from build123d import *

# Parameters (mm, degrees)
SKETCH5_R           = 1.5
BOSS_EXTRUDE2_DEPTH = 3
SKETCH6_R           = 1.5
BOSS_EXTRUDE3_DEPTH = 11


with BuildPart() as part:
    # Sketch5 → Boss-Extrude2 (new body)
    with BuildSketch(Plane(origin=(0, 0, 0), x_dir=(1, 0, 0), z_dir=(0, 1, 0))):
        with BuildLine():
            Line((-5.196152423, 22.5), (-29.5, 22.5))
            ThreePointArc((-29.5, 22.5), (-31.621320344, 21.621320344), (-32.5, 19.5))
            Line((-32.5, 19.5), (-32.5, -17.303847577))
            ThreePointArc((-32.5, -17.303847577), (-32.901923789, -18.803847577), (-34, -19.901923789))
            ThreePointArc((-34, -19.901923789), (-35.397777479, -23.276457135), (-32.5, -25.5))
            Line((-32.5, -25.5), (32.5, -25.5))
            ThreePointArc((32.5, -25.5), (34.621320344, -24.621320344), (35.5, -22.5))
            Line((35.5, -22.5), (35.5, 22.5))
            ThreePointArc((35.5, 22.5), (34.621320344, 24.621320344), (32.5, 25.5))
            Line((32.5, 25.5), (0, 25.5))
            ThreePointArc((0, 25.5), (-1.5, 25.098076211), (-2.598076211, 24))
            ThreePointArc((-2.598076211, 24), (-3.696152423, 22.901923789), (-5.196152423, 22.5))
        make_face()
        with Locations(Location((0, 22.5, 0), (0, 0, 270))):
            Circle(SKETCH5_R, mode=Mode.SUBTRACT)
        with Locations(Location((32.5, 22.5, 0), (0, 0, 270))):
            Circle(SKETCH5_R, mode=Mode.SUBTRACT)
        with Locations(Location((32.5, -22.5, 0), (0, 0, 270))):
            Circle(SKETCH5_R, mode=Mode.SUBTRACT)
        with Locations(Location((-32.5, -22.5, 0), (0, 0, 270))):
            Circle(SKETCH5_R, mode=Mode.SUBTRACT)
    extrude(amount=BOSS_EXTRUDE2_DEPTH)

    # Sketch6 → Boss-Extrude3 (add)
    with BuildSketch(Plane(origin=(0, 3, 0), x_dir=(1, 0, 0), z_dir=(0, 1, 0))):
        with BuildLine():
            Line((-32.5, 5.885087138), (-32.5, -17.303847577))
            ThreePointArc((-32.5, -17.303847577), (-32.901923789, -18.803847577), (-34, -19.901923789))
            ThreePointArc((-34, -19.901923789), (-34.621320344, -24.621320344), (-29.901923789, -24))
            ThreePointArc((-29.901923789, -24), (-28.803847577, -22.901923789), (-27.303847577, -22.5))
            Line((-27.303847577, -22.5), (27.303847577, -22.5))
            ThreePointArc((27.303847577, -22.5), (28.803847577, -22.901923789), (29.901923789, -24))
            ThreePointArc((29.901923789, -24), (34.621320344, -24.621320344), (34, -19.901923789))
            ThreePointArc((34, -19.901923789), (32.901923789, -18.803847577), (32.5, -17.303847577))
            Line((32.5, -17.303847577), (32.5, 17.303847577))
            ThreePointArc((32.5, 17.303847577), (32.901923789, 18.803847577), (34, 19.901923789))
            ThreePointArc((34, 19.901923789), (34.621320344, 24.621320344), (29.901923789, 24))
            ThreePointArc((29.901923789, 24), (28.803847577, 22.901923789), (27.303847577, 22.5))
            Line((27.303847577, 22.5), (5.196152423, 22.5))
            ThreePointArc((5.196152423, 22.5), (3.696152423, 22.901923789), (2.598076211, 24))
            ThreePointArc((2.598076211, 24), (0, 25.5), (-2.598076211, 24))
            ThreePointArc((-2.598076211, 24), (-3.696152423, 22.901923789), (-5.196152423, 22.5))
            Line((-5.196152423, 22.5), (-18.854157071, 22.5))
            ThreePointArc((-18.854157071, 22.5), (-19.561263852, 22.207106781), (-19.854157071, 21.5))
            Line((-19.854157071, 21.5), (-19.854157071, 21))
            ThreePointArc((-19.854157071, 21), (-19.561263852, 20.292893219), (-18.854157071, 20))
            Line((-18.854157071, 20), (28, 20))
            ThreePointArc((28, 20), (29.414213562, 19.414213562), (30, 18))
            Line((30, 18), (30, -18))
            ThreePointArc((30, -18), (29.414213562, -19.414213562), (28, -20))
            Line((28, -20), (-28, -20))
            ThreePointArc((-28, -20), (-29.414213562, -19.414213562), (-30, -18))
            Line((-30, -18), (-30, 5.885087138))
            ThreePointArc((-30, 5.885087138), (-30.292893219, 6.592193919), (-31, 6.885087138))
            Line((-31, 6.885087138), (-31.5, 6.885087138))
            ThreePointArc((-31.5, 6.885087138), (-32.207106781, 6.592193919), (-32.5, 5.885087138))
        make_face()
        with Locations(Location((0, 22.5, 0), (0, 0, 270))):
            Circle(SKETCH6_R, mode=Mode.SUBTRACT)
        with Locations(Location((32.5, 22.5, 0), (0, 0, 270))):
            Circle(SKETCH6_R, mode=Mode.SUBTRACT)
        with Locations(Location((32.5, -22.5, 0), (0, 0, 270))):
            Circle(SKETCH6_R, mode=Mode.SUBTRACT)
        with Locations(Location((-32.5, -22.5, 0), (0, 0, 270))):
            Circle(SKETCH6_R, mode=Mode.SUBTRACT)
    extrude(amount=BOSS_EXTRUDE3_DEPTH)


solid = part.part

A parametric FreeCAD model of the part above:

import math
import FreeCAD as App
import Part
import Sketcher
from FreeCAD import Vector
Q = App.Units.Quantity

doc = App.newDocument("Part")
body = doc.addObject("PartDesign::Body", "Body")

sketch1 = doc.addObject("Sketcher::SketchObject", "Sketch")
body.addObject(sketch1)
sketch1.AttachmentSupport = (doc.XZ_Plane, [""])
sketch1.MapMode = "FlatFace"
sketch1.addGeometry([
    Part.LineSegment(Vector(-5.2, -22.5, 0), Vector(-29.5, -22.5, 0)),
    Part.ArcOfCircle(Part.Circle(Vector(-29.5, -19.5, 0), Vector(0, 0, 1), 3), math.radians(180), math.radians(270)),
    Part.LineSegment(Vector(-32.5, -19.5, 0), Vector(-32.5, 17.3, 0)),
    Part.ArcOfCircle(Part.Circle(Vector(-35.5, 17.3, 0), Vector(0, 0, 1), 3), math.radians(0), math.radians(60)),
    Part.ArcOfCircle(Part.Circle(Vector(-32.5, 22.5, 0), Vector(0, 0, 1), 3), math.radians(90), math.radians(240)),
    Part.LineSegment(Vector(-32.5, 25.5, 0), Vector(32.5, 25.5, 0)),
    Part.ArcOfCircle(Part.Circle(Vector(32.5, 22.5, 0), Vector(0, 0, 1), 3), math.radians(0), math.radians(90)),
    Part.LineSegment(Vector(35.5, 22.5, 0), Vector(35.5, -22.5, 0)),
    Part.ArcOfCircle(Part.Circle(Vector(32.5, -22.5, 0), Vector(0, 0, 1), 3), math.radians(-90), math.radians(0)),
    Part.LineSegment(Vector(32.5, -25.5, 0), Vector(0, -25.5, 0)),
    Part.ArcOfCircle(Part.Circle(Vector(0, -22.5, 0), Vector(0, 0, 1), 3), math.radians(-150), math.radians(-90)),
    Part.ArcOfCircle(Part.Circle(Vector(-5.2, -25.5, 0), Vector(0, 0, 1), 3), math.radians(30), math.radians(90)),
    Part.Circle(Vector(-32.5, 22.5, 0), Vector(0, 0, 1), 1.5),
    Part.Circle(Vector(32.5, 22.5, 0), Vector(0, 0, 1), 1.5),
    Part.Circle(Vector(0, -22.5, 0), Vector(0, 0, 1), 1.5),
    Part.Circle(Vector(32.5, -22.5, 0), Vector(0, 0, 1), 1.5),
], False)
sketch1.addConstraint([
    Sketcher.Constraint("Tangent", 0, 2, 1, 2),
    Sketcher.Constraint("Tangent", 1, 1, 2, 1),
    Sketcher.Constraint("Tangent", 2, 2, 3, 1),
    Sketcher.Constraint("Tangent", 3, 2, 4, 2),
    Sketcher.Constraint("Tangent", 4, 1, 5, 1),
    Sketcher.Constraint("Tangent", 5, 2, 6, 2),
    Sketcher.Constraint("Tangent", 6, 1, 7, 1),
    Sketcher.Constraint("Tangent", 7, 2, 8, 2),
    Sketcher.Constraint("Tangent", 8, 1, 9, 1),
    Sketcher.Constraint("Tangent", 9, 2, 10, 2),
    Sketcher.Constraint("Tangent", 10, 1, 11, 1),
    Sketcher.Constraint("Tangent", 11, 2, 0, 1),
    Sketcher.Constraint("Horizontal", 0),
    Sketcher.Constraint("Vertical", 2),
    Sketcher.Constraint("Horizontal", 5),
    Sketcher.Constraint("Vertical", 7),
    Sketcher.Constraint("Horizontal", 9),
    Sketcher.Constraint("Coincident", 12, 3, 4, 3),
    Sketcher.Constraint("Coincident", 13, 3, 6, 3),
    Sketcher.Constraint("Coincident", 14, 3, 10, 3),
    Sketcher.Constraint("Coincident", 15, 3, 8, 3),
    Sketcher.Constraint("Equal", 1, 3),
    Sketcher.Constraint("Equal", 3, 4),
    Sketcher.Constraint("Equal", 4, 6),
    Sketcher.Constraint("Equal", 6, 8),
    Sketcher.Constraint("Equal", 8, 10),
    Sketcher.Constraint("Equal", 10, 11),
    Sketcher.Constraint("Equal", 12, 13),
    Sketcher.Constraint("Equal", 13, 14),
    Sketcher.Constraint("Equal", 14, 15),
    Sketcher.Constraint("Symmetric", 4, 3, 8, 3, -1, 1),
    Sketcher.Constraint("PointOnObject", 10, 3, -2),
    Sketcher.Constraint("Horizontal", 15, 3, 0, 2),
    Sketcher.Constraint("Vertical", 12, 3, 1, 1),
    Sketcher.Constraint("Diameter", 12, Q("3 mm")),
    Sketcher.Constraint("Radius", 1, Q("3 mm")),
    Sketcher.Constraint("DistanceX", 5, 1, 5, 2, Q("65 mm")),
    Sketcher.Constraint("DistanceY", 7, 2, 7, 1, Q("45 mm")),
])
pad1 = doc.addObject("PartDesign::Pad", "Pad")
body.addObject(pad1)
pad1.Profile = sketch1
pad1.Length = 3
pad1.Reversed = True

sketch2 = doc.addObject("Sketcher::SketchObject", "Sketch001")
body.addObject(sketch2)
sketch2.AttachmentSupport = (doc.XZ_Plane, [""])
sketch2.MapMode = "FlatFace"
sketch2.AttachmentOffset = App.Placement(Vector(0, 0, -3), App.Rotation())
sketch2.addGeometry([
    Part.LineSegment(Vector(-32.5, -5.9, 0), Vector(-32.5, 17.3, 0)),
    Part.ArcOfCircle(Part.Circle(Vector(-35.5, 17.3, 0), Vector(0, 0, 1), 3), math.radians(0), math.radians(60)),
    Part.ArcOfCircle(Part.Circle(Vector(-32.5, 22.5, 0), Vector(0, 0, 1), 3), math.radians(30), math.radians(240)),
    Part.ArcOfCircle(Part.Circle(Vector(-27.3, 25.5, 0), Vector(0, 0, 1), 3), math.radians(-150), math.radians(-90)),
    Part.LineSegment(Vector(-27.3, 22.5, 0), Vector(27.3, 22.5, 0)),
    Part.ArcOfCircle(Part.Circle(Vector(27.3, 25.5, 0), Vector(0, 0, 1), 3), math.radians(-90), math.radians(-30)),
    Part.ArcOfCircle(Part.Circle(Vector(32.5, 22.5, 0), Vector(0, 0, 1), 3), math.radians(-60), math.radians(150)),
    Part.ArcOfCircle(Part.Circle(Vector(35.5, 17.3, 0), Vector(0, 0, 1), 3), math.radians(120), math.radians(180)),
    Part.LineSegment(Vector(32.5, 17.3, 0), Vector(32.5, -17.3, 0)),
    Part.ArcOfCircle(Part.Circle(Vector(35.5, -17.3, 0), Vector(0, 0, 1), 3), math.radians(-180), math.radians(-120)),
    Part.ArcOfCircle(Part.Circle(Vector(32.5, -22.5, 0), Vector(0, 0, 1), 3), math.radians(-150), math.radians(60)),
    Part.ArcOfCircle(Part.Circle(Vector(27.3, -25.5, 0), Vector(0, 0, 1), 3), math.radians(30), math.radians(90)),
    Part.LineSegment(Vector(27.3, -22.5, 0), Vector(5.2, -22.5, 0)),
    Part.ArcOfCircle(Part.Circle(Vector(5.2, -25.5, 0), Vector(0, 0, 1), 3), math.radians(90), math.radians(150)),
    Part.ArcOfCircle(Part.Circle(Vector(0, -22.5, 0), Vector(0, 0, 1), 3), math.radians(-150), math.radians(-30)),
    Part.ArcOfCircle(Part.Circle(Vector(-5.2, -25.5, 0), Vector(0, 0, 1), 3), math.radians(30), math.radians(90)),
    Part.LineSegment(Vector(-5.2, -22.5, 0), Vector(-18.9, -22.5, 0)),
    Part.ArcOfCircle(Part.Circle(Vector(-18.9, -21.5, 0), Vector(0, 0, 1), 1), math.radians(-180), math.radians(-90)),
    Part.LineSegment(Vector(-19.9, -21.5, 0), Vector(-19.9, -21, 0)),
    Part.ArcOfCircle(Part.Circle(Vector(-18.9, -21, 0), Vector(0, 0, 1), 1), math.radians(90), math.radians(180)),
    Part.LineSegment(Vector(-18.9, -20, 0), Vector(28, -20, 0)),
    Part.ArcOfCircle(Part.Circle(Vector(28, -18, 0), Vector(0, 0, 1), 2), math.radians(-90), math.radians(0)),
    Part.LineSegment(Vector(30, -18, 0), Vector(30, 18, 0)),
    Part.ArcOfCircle(Part.Circle(Vector(28, 18, 0), Vector(0, 0, 1), 2), math.radians(0), math.radians(90)),
    Part.LineSegment(Vector(28, 20, 0), Vector(-28, 20, 0)),
    Part.ArcOfCircle(Part.Circle(Vector(-28, 18, 0), Vector(0, 0, 1), 2), math.radians(90), math.radians(180)),
    Part.LineSegment(Vector(-30, 18, 0), Vector(-30, -5.9, 0)),
    Part.ArcOfCircle(Part.Circle(Vector(-31, -5.9, 0), Vector(0, 0, 1), 1), math.radians(-90), math.radians(0)),
    Part.LineSegment(Vector(-31, -6.9, 0), Vector(-31.5, -6.9, 0)),
    Part.ArcOfCircle(Part.Circle(Vector(-31.5, -5.9, 0), Vector(0, 0, 1), 1), math.radians(-180), math.radians(-90)),
    Part.Circle(Vector(-32.5, 22.5, 0), Vector(0, 0, 1), 1.5),
    Part.Circle(Vector(32.5, 22.5, 0), Vector(0, 0, 1), 1.5),
    Part.Circle(Vector(0, -22.5, 0), Vector(0, 0, 1), 1.5),
    Part.Circle(Vector(32.5, -22.5, 0), Vector(0, 0, 1), 1.5),
], False)
sketch2.addConstraint([
    Sketcher.Constraint("Tangent", 0, 2, 1, 1),
    Sketcher.Constraint("Tangent", 1, 2, 2, 2),
    Sketcher.Constraint("Tangent", 2, 1, 3, 1),
    Sketcher.Constraint("Tangent", 3, 2, 4, 1),
    Sketcher.Constraint("Tangent", 4, 2, 5, 1),
    Sketcher.Constraint("Tangent", 5, 2, 6, 2),
    Sketcher.Constraint("Tangent", 6, 1, 7, 1),
    Sketcher.Constraint("Tangent", 7, 2, 8, 1),
    Sketcher.Constraint("Tangent", 8, 2, 9, 1),
    Sketcher.Constraint("Tangent", 9, 2, 10, 2),
    Sketcher.Constraint("Tangent", 10, 1, 11, 1),
    Sketcher.Constraint("Tangent", 11, 2, 12, 1),
    Sketcher.Constraint("Tangent", 12, 2, 13, 1),
    Sketcher.Constraint("Tangent", 13, 2, 14, 2),
    Sketcher.Constraint("Tangent", 14, 1, 15, 1),
    Sketcher.Constraint("Tangent", 15, 2, 16, 1),
    Sketcher.Constraint("Tangent", 16, 2, 17, 2),
    Sketcher.Constraint("Tangent", 17, 1, 18, 1),
    Sketcher.Constraint("Tangent", 18, 2, 19, 2),
    Sketcher.Constraint("Tangent", 19, 1, 20, 1),
    Sketcher.Constraint("Tangent", 20, 2, 21, 1),
    Sketcher.Constraint("Tangent", 21, 2, 22, 1),
    Sketcher.Constraint("Tangent", 22, 2, 23, 1),
    Sketcher.Constraint("Tangent", 23, 2, 24, 1),
    Sketcher.Constraint("Tangent", 24, 2, 25, 1),
    Sketcher.Constraint("Tangent", 25, 2, 26, 1),
    Sketcher.Constraint("Tangent", 26, 2, 27, 2),
    Sketcher.Constraint("Tangent", 27, 1, 28, 1),
    Sketcher.Constraint("Tangent", 28, 2, 29, 2),
    Sketcher.Constraint("Tangent", 29, 1, 0, 1),
    Sketcher.Constraint("Vertical", 0),
    Sketcher.Constraint("Horizontal", 4),
    Sketcher.Constraint("Vertical", 8),
    Sketcher.Constraint("Horizontal", 12),
    Sketcher.Constraint("Horizontal", 16),
    Sketcher.Constraint("Vertical", 18),
    Sketcher.Constraint("Horizontal", 20),
    Sketcher.Constraint("Vertical", 22),
    Sketcher.Constraint("Horizontal", 24),
    Sketcher.Constraint("Vertical", 26),
    Sketcher.Constraint("Horizontal", 28),
    Sketcher.Constraint("Coincident", 30, 3, 2, 3),
    Sketcher.Constraint("Coincident", 31, 3, 6, 3),
    Sketcher.Constraint("Coincident", 32, 3, 14, 3),
    Sketcher.Constraint("Coincident", 33, 3, 10, 3),
    Sketcher.Constraint("Equal", 1, 2),
    Sketcher.Constraint("Equal", 2, 3),
    Sketcher.Constraint("Equal", 3, 5),
    Sketcher.Constraint("Equal", 5, 6),
    Sketcher.Constraint("Equal", 6, 7),
    Sketcher.Constraint("Equal", 7, 9),
    Sketcher.Constraint("Equal", 9, 10),
    Sketcher.Constraint("Equal", 10, 11),
    Sketcher.Constraint("Equal", 11, 13),
    Sketcher.Constraint("Equal", 13, 14),
    Sketcher.Constraint("Equal", 14, 15),
    Sketcher.Constraint("Equal", 17, 19),
    Sketcher.Constraint("Equal", 21, 23),
    Sketcher.Constraint("Equal", 23, 25),
    Sketcher.Constraint("Equal", 19, 27),
    Sketcher.Constraint("Equal", 27, 29),
    Sketcher.Constraint("Equal", 30, 31),
    Sketcher.Constraint("Equal", 31, 32),
    Sketcher.Constraint("Equal", 32, 33),
    Sketcher.Constraint("Symmetric", 1, 3, 9, 3, -1, 1),
    Sketcher.Constraint("Symmetric", 3, 3, 11, 3, -1, 1),
    Sketcher.Constraint("Symmetric", 21, 3, 25, 3, -1, 1),
    Sketcher.Constraint("Symmetric", 2, 3, 6, 3, -2),
    Sketcher.Constraint("Symmetric", 13, 3, 15, 3, -2),
    Sketcher.Constraint("Horizontal", 10, 3, 14, 3),
    Sketcher.Constraint("Horizontal", 31, 3, 3, 2),
    Sketcher.Constraint("Vertical", 30, 3, 0, 2),
    Sketcher.Constraint("Equal", 28, 18),
    Sketcher.Constraint("Diameter", 30, Q("3 mm")),
    Sketcher.Constraint("Radius", 1, Q("3 mm")),
    Sketcher.Constraint("Radius", 17, Q("1 mm")),
    Sketcher.Constraint("Radius", 21, Q("2 mm")),
    Sketcher.Constraint("DistanceX", 24, 2, 24, 1, Q("56 mm")),
    Sketcher.Constraint("DistanceY", 22, 1, 22, 2, Q("36 mm")),
    Sketcher.Constraint("DistanceX", 28, 2, 28, 1, Q("0.5 mm")),
    Sketcher.Constraint("DistanceX", 16, 2, 16, 1, Q("13.658005 mm")),
    Sketcher.Constraint("DistanceY", 0, 1, 0, 2, Q("23.188935 mm")),
])
pad2 = doc.addObject("PartDesign::Pad", "Pad001")
body.addObject(pad2)
pad2.Profile = sketch2
pad2.Length = 11
pad2.Reversed = True

doc.recompute()
